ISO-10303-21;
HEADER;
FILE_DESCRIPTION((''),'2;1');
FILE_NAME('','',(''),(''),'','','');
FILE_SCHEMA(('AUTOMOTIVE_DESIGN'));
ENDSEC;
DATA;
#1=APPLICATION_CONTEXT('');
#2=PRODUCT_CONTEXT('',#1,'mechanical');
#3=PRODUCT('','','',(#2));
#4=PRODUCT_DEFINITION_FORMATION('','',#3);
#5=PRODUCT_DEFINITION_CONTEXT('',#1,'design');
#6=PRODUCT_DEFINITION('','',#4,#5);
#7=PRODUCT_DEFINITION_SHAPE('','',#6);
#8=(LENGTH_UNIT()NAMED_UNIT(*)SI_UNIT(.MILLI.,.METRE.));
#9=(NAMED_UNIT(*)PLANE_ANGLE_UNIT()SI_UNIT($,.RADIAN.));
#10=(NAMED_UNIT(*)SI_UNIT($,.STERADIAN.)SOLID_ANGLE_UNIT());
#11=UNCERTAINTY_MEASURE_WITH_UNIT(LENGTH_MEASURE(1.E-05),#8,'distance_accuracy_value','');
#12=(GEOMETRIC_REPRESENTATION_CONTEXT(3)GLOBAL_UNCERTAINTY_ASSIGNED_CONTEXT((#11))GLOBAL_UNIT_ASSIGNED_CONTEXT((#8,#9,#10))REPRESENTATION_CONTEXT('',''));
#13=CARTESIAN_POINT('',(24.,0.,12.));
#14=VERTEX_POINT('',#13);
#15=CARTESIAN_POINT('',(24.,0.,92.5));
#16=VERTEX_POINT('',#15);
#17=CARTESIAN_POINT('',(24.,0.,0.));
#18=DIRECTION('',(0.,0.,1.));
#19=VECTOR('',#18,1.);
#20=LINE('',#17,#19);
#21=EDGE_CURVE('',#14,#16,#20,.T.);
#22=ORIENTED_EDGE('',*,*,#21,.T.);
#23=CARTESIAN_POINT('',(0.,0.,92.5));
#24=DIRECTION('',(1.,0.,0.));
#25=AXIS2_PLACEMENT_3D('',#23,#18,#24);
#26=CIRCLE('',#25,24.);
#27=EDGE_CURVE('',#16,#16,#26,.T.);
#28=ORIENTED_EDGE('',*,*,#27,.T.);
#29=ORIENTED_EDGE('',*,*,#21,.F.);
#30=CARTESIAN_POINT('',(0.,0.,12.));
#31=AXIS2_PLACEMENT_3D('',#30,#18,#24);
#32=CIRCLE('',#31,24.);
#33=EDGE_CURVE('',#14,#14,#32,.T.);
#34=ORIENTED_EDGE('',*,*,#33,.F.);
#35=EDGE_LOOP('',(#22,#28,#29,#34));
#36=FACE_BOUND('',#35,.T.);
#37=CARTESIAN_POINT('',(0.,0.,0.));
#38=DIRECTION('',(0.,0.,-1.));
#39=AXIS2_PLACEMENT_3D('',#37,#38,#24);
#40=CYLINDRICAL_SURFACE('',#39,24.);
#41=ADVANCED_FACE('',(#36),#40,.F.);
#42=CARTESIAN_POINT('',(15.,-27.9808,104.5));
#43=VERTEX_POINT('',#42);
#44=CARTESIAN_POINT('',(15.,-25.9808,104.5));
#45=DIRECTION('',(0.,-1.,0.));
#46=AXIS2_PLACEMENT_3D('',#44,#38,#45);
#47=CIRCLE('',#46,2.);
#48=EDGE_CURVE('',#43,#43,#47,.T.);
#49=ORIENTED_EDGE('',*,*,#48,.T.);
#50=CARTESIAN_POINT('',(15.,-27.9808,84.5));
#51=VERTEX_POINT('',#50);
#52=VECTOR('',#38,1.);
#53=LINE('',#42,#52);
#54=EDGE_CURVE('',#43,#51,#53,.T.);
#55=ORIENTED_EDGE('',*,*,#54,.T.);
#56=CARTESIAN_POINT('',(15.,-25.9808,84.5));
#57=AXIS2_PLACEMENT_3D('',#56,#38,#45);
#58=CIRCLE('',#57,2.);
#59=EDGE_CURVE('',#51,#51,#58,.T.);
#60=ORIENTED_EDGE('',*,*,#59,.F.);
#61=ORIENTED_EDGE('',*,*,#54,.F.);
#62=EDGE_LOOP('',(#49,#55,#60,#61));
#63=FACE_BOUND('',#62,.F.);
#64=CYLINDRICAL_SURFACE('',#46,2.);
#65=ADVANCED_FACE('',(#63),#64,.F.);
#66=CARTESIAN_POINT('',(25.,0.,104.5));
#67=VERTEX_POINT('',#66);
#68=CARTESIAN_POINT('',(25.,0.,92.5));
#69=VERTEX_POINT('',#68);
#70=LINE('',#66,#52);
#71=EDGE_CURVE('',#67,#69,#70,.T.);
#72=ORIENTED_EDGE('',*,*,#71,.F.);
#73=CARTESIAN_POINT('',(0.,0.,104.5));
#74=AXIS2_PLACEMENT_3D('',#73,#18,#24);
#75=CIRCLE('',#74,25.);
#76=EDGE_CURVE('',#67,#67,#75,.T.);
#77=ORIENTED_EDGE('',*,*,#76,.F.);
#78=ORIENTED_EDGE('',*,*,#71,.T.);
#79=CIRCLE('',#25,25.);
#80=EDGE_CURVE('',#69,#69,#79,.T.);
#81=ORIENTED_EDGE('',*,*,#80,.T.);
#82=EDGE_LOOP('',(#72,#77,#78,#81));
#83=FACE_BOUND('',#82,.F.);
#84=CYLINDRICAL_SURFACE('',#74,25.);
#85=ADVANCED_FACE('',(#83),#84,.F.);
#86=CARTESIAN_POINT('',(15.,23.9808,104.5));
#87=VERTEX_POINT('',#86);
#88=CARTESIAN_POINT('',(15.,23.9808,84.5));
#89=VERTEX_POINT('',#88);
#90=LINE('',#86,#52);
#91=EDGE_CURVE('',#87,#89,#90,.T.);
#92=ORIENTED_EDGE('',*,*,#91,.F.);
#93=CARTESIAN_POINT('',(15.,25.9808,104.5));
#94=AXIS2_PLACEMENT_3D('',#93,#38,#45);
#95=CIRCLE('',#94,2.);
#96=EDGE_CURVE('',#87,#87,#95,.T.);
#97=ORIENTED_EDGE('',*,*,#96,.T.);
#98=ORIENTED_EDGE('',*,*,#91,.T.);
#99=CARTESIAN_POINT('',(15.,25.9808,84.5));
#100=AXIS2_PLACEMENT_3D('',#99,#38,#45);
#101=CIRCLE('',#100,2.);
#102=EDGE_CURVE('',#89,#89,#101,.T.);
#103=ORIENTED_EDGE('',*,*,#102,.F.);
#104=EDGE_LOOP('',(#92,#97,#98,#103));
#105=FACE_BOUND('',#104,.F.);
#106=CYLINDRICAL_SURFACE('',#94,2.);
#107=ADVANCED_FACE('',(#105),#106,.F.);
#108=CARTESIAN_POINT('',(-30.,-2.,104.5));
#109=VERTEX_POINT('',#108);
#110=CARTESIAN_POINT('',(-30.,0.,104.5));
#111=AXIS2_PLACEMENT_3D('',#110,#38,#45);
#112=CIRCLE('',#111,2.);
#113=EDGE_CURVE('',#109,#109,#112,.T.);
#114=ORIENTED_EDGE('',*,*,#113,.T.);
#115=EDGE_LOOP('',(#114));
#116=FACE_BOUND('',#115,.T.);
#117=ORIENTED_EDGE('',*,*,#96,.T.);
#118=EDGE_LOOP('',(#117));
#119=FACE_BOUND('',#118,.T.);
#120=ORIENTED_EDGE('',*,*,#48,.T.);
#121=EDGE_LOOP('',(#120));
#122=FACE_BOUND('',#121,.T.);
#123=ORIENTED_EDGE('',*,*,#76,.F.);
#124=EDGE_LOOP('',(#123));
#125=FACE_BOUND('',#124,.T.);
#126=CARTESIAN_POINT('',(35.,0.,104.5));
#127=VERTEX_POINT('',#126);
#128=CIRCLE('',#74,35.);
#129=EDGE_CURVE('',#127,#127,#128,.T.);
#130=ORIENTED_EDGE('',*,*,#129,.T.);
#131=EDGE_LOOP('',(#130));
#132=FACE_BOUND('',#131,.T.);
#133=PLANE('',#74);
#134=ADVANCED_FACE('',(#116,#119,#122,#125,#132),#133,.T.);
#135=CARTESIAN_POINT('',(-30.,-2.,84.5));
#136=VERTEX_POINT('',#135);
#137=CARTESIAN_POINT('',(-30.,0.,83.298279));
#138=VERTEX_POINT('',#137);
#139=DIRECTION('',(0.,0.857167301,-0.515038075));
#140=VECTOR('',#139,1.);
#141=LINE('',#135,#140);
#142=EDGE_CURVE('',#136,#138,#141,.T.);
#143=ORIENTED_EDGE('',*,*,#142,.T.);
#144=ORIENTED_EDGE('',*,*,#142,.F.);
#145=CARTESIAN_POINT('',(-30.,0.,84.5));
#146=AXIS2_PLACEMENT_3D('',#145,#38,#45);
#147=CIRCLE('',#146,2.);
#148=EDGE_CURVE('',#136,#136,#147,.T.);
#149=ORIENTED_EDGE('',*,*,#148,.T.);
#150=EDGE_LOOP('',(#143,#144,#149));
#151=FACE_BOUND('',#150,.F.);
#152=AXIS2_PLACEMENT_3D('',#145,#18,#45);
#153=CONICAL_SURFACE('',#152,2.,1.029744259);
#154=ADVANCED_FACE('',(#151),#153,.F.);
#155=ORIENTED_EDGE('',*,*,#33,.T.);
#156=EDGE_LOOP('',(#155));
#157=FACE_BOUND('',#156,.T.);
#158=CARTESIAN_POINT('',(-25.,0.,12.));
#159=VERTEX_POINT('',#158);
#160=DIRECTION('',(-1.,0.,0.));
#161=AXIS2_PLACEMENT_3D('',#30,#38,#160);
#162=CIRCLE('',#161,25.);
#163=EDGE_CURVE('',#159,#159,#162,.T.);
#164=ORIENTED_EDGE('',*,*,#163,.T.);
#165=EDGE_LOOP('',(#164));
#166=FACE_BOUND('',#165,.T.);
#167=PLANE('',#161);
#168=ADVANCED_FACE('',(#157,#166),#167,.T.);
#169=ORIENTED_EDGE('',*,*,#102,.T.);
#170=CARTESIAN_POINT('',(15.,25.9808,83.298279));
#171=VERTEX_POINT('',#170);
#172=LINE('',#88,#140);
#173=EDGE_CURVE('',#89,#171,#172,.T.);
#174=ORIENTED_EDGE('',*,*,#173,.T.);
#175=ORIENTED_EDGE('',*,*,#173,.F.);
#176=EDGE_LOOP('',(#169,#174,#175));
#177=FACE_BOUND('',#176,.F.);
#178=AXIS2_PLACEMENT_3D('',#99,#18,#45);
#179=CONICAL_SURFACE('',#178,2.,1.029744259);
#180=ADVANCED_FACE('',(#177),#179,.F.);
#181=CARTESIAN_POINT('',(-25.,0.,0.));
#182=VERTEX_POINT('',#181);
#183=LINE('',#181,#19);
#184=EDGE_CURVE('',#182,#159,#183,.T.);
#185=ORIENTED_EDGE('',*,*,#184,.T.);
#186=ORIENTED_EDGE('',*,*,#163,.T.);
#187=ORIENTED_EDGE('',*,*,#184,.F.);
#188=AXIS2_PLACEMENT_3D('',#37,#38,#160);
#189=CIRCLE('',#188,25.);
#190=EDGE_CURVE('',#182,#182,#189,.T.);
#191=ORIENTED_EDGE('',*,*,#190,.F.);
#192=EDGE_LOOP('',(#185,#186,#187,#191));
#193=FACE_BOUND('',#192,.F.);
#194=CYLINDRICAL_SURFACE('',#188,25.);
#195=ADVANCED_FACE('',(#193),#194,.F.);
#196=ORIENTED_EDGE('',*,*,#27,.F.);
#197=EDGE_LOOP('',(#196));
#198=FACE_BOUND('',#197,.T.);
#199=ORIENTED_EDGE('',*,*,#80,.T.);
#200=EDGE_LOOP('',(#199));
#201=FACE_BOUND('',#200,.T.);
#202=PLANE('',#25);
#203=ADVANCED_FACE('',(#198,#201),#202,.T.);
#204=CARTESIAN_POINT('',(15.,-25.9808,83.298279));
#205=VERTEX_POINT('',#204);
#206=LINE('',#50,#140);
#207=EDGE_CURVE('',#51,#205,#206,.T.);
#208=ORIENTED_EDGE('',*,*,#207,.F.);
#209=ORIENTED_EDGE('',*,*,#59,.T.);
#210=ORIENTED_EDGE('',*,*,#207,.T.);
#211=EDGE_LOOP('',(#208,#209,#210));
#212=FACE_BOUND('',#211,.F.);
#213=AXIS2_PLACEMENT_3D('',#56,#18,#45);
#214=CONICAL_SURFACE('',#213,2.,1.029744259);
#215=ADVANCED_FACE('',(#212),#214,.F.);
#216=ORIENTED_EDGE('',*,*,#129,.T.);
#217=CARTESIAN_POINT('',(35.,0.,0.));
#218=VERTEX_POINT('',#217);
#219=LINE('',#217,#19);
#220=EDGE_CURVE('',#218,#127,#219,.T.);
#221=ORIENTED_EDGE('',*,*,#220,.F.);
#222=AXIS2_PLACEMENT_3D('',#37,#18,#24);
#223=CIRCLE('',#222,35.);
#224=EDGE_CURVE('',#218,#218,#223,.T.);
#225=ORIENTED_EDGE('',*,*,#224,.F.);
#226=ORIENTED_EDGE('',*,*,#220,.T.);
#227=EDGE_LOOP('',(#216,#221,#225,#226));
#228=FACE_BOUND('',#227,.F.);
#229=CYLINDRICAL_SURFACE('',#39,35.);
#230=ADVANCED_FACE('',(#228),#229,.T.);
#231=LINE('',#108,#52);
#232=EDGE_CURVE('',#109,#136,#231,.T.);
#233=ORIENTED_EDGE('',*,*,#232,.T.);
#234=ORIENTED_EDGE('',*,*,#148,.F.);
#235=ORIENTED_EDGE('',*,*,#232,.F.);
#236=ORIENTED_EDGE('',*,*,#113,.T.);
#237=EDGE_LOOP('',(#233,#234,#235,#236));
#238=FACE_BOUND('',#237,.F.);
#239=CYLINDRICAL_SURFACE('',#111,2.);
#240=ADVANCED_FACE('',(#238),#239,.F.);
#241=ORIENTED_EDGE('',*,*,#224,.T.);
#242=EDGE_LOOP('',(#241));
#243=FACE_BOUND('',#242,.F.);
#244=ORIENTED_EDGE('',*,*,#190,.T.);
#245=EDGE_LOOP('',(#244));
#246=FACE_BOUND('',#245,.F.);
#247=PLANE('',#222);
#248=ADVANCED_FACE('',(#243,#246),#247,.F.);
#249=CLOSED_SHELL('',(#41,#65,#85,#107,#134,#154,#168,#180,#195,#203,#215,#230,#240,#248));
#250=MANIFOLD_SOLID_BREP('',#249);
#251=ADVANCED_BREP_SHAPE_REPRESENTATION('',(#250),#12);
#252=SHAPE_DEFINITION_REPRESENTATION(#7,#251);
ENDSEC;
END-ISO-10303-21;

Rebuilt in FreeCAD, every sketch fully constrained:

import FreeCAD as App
import Part
import Sketcher
from FreeCAD import Vector
Q = App.Units.Quantity

doc = App.newDocument("Part")
body = doc.addObject("PartDesign::Body", "Body")

sketch1 = body.newObject("Sketcher::SketchObject", "Sketch")
sketch1.AttachmentSupport = (doc.getObject("XY_Plane"), [""])
sketch1.MapMode = "FlatFace"
sketch1.addGeometry(Part.Circle(Vector(0, 0, 0), Vector(0, 0, 1), 35), False)
sketch1.addGeometry(Part.Circle(Vector(0, 0, 0), Vector(0, 0, 1), 24), False)
sketch1.addConstraint(Sketcher.Constraint("Coincident", 0, 3, -1, 1))
sketch1.addConstraint(Sketcher.Constraint("Coincident", 1, 3, -1, 1))
sketch1.addConstraint(Sketcher.Constraint("Diameter", 0, Q("70 mm")))
sketch1.addConstraint(Sketcher.Constraint("Diameter", 1, Q("48 mm")))
pad1 = body.newObject("PartDesign::Pad", "Pad")
pad1.Profile = sketch1
pad1.Length = 104.5

sketch2 = body.newObject("Sketcher::SketchObject", "Sketch001")
sketch2.AttachmentSupport = (doc.getObject("XY_Plane"), [""])
sketch2.MapMode = "FlatFace"
sketch2.AttachmentOffset = App.Placement(Vector(0, 0, 104.5), App.Rotation())
sketch2.addGeometry(Part.Circle(Vector(-30, 0, 0), Vector(0, 0, 1), 2), False)
sketch2.addGeometry(Part.Circle(Vector(15, 26, 0), Vector(0, 0, 1), 2), False)
sketch2.addGeometry(Part.Circle(Vector(15, -26, 0), Vector(0, 0, 1), 2), False)
sketch2.addConstraint(Sketcher.Constraint("Equal", 0, 1))
sketch2.addConstraint(Sketcher.Constraint("Equal", 1, 2))
sketch2.addConstraint(Sketcher.Constraint("Symmetric", 1, 3, 2, 3, -1))
sketch2.addConstraint(Sketcher.Constraint("PointOnObject", 0, 3, -1))
sketch2.addConstraint(Sketcher.Constraint("Diameter", 0, Q("4 mm")))
sketch2.addConstraint(Sketcher.Constraint("DistanceX", 0, 3, -1, 1, Q("30 mm")))
sketch2.addConstraint(Sketcher.Constraint("DistanceX", -1, 1, 1, 3, Q("15 mm")))
sketch2.addConstraint(Sketcher.Constraint("DistanceY", -1, 1, 1, 3, Q("25.9808 mm")))
doc.recompute()
hole = body.newObject("PartDesign::Hole", "Hole")
hole.Profile = sketch2
hole.ThreadType = "None"
hole.Diameter = 4
hole.DepthType = "Dimension"
hole.Depth = 20
hole.DrillPoint = "Angled"
hole.DrillPointAngle = 118

sketch3 = body.newObject("Sketcher::SketchObject", "Sketch002")
sketch3.AttachmentSupport = (doc.getObject("XY_Plane"), [""])
sketch3.MapMode = "FlatFace"
sketch3.AttachmentOffset = App.Placement(Vector(0, 0, 104.5), App.Rotation())
sketch3.addGeometry(Part.Circle(Vector(0, 0, 0), Vector(0, 0, 1), 25), False)
sketch3.addGeometry(Part.Circle(Vector(0, 0, 0), Vector(0, 0, 1), 24), False)
sketch3.addConstraint(Sketcher.Constraint("Coincident", 0, 3, -1, 1))
sketch3.addConstraint(Sketcher.Constraint("Coincident", 1, 3, -1, 1))
sketch3.addConstraint(Sketcher.Constraint("Diameter", 0, Q("50 mm")))
sketch3.addConstraint(Sketcher.Constraint("Diameter", 1, Q("48 mm")))
pocket1 = body.newObject("PartDesign::Pocket", "Pocket")
pocket1.Profile = sketch3
pocket1.Length = 12

sketch4 = body.newObject("Sketcher::SketchObject", "Sketch003")
sketch4.AttachmentSupport = (doc.getObject("XY_Plane"), [""])
sketch4.MapMode = "FlatFace"
sketch4.addGeometry(Part.Circle(Vector(0, 0, 0), Vector(0, 0, 1), 25), False)
sketch4.addGeometry(Part.Circle(Vector(0, 0, 0), Vector(0, 0, 1), 24), False)
sketch4.addConstraint(Sketcher.Constraint("Coincident", 0, 3, -1, 1))
sketch4.addConstraint(Sketcher.Constraint("Coincident", 1, 3, -1, 1))
sketch4.addConstraint(Sketcher.Constraint("Diameter", 0, Q("50 mm")))
sketch4.addConstraint(Sketcher.Constraint("Diameter", 1, Q("48 mm")))
pocket2 = body.newObject("PartDesign::Pocket", "Pocket001")
pocket2.Profile = sketch4
pocket2.Length = 12
pocket2.Reversed = True

doc.recompute()
